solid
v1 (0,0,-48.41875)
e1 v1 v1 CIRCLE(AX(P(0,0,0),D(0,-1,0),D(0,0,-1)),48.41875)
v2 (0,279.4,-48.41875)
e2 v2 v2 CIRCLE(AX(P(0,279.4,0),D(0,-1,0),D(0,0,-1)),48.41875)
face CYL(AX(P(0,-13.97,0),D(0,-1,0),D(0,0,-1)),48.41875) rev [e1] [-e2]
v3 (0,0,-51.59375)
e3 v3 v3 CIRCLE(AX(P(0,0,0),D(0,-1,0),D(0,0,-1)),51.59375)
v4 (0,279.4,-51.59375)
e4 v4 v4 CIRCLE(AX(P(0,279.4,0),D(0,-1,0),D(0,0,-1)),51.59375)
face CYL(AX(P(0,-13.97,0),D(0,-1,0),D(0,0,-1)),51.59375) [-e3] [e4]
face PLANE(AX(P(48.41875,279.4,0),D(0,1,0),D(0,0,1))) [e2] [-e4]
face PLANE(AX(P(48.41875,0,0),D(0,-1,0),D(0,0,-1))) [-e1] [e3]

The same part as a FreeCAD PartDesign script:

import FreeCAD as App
import Part
import Sketcher

V = App.Vector
Q = App.Units.Quantity

doc = App.newDocument("Part")
body = doc.addObject("PartDesign::Body", "Body")

sketch1 = body.newObject("Sketcher::SketchObject", "Sketch")
sketch1.AttachmentSupport = (doc.getObject("XY_Plane"), [""])
sketch1.MapMode = "FlatFace"
sketch1.addGeometry([
    Part.LineSegment(V(48.4, 279.4, 0), V(48.4, 0, 0)),
    Part.LineSegment(V(48.4, 0, 0), V(51.6, 0, 0)),
    Part.LineSegment(V(51.6, 0, 0), V(51.6, 279.4, 0)),
    Part.LineSegment(V(51.6, 279.4, 0), V(48.4, 279.4, 0)),
], False)
sketch1.addConstraint([
    Sketcher.Constraint("Coincident", 0, 2, 1, 1),
    Sketcher.Constraint("Coincident", 1, 2, 2, 1),
    Sketcher.Constraint("Coincident", 2, 2, 3, 1),
    Sketcher.Constraint("Coincident", 3, 2, 0, 1),
    Sketcher.Constraint("Vertical", 0),
    Sketcher.Constraint("Horizontal", 1),
    Sketcher.Constraint("Vertical", 2),
    Sketcher.Constraint("Horizontal", 3),
    Sketcher.Constraint("PointOnObject", 0, 2, -1),
    Sketcher.Constraint("DistanceY", 0, 2, 0, 1, Q("11 in")),
    Sketcher.Constraint("DistanceX", 1, 1, 1, 2, Q("0.125 in")),
    Sketcher.Constraint("DistanceX", -1, 1, 0, 2, Q("1.90625 in")),
])
revolution = body.newObject("PartDesign::Revolution", "Revolution")
revolution.Profile = sketch1
revolution.ReferenceAxis = (sketch1, ["V_Axis"])
revolution.Angle = 360

doc.recompute()
